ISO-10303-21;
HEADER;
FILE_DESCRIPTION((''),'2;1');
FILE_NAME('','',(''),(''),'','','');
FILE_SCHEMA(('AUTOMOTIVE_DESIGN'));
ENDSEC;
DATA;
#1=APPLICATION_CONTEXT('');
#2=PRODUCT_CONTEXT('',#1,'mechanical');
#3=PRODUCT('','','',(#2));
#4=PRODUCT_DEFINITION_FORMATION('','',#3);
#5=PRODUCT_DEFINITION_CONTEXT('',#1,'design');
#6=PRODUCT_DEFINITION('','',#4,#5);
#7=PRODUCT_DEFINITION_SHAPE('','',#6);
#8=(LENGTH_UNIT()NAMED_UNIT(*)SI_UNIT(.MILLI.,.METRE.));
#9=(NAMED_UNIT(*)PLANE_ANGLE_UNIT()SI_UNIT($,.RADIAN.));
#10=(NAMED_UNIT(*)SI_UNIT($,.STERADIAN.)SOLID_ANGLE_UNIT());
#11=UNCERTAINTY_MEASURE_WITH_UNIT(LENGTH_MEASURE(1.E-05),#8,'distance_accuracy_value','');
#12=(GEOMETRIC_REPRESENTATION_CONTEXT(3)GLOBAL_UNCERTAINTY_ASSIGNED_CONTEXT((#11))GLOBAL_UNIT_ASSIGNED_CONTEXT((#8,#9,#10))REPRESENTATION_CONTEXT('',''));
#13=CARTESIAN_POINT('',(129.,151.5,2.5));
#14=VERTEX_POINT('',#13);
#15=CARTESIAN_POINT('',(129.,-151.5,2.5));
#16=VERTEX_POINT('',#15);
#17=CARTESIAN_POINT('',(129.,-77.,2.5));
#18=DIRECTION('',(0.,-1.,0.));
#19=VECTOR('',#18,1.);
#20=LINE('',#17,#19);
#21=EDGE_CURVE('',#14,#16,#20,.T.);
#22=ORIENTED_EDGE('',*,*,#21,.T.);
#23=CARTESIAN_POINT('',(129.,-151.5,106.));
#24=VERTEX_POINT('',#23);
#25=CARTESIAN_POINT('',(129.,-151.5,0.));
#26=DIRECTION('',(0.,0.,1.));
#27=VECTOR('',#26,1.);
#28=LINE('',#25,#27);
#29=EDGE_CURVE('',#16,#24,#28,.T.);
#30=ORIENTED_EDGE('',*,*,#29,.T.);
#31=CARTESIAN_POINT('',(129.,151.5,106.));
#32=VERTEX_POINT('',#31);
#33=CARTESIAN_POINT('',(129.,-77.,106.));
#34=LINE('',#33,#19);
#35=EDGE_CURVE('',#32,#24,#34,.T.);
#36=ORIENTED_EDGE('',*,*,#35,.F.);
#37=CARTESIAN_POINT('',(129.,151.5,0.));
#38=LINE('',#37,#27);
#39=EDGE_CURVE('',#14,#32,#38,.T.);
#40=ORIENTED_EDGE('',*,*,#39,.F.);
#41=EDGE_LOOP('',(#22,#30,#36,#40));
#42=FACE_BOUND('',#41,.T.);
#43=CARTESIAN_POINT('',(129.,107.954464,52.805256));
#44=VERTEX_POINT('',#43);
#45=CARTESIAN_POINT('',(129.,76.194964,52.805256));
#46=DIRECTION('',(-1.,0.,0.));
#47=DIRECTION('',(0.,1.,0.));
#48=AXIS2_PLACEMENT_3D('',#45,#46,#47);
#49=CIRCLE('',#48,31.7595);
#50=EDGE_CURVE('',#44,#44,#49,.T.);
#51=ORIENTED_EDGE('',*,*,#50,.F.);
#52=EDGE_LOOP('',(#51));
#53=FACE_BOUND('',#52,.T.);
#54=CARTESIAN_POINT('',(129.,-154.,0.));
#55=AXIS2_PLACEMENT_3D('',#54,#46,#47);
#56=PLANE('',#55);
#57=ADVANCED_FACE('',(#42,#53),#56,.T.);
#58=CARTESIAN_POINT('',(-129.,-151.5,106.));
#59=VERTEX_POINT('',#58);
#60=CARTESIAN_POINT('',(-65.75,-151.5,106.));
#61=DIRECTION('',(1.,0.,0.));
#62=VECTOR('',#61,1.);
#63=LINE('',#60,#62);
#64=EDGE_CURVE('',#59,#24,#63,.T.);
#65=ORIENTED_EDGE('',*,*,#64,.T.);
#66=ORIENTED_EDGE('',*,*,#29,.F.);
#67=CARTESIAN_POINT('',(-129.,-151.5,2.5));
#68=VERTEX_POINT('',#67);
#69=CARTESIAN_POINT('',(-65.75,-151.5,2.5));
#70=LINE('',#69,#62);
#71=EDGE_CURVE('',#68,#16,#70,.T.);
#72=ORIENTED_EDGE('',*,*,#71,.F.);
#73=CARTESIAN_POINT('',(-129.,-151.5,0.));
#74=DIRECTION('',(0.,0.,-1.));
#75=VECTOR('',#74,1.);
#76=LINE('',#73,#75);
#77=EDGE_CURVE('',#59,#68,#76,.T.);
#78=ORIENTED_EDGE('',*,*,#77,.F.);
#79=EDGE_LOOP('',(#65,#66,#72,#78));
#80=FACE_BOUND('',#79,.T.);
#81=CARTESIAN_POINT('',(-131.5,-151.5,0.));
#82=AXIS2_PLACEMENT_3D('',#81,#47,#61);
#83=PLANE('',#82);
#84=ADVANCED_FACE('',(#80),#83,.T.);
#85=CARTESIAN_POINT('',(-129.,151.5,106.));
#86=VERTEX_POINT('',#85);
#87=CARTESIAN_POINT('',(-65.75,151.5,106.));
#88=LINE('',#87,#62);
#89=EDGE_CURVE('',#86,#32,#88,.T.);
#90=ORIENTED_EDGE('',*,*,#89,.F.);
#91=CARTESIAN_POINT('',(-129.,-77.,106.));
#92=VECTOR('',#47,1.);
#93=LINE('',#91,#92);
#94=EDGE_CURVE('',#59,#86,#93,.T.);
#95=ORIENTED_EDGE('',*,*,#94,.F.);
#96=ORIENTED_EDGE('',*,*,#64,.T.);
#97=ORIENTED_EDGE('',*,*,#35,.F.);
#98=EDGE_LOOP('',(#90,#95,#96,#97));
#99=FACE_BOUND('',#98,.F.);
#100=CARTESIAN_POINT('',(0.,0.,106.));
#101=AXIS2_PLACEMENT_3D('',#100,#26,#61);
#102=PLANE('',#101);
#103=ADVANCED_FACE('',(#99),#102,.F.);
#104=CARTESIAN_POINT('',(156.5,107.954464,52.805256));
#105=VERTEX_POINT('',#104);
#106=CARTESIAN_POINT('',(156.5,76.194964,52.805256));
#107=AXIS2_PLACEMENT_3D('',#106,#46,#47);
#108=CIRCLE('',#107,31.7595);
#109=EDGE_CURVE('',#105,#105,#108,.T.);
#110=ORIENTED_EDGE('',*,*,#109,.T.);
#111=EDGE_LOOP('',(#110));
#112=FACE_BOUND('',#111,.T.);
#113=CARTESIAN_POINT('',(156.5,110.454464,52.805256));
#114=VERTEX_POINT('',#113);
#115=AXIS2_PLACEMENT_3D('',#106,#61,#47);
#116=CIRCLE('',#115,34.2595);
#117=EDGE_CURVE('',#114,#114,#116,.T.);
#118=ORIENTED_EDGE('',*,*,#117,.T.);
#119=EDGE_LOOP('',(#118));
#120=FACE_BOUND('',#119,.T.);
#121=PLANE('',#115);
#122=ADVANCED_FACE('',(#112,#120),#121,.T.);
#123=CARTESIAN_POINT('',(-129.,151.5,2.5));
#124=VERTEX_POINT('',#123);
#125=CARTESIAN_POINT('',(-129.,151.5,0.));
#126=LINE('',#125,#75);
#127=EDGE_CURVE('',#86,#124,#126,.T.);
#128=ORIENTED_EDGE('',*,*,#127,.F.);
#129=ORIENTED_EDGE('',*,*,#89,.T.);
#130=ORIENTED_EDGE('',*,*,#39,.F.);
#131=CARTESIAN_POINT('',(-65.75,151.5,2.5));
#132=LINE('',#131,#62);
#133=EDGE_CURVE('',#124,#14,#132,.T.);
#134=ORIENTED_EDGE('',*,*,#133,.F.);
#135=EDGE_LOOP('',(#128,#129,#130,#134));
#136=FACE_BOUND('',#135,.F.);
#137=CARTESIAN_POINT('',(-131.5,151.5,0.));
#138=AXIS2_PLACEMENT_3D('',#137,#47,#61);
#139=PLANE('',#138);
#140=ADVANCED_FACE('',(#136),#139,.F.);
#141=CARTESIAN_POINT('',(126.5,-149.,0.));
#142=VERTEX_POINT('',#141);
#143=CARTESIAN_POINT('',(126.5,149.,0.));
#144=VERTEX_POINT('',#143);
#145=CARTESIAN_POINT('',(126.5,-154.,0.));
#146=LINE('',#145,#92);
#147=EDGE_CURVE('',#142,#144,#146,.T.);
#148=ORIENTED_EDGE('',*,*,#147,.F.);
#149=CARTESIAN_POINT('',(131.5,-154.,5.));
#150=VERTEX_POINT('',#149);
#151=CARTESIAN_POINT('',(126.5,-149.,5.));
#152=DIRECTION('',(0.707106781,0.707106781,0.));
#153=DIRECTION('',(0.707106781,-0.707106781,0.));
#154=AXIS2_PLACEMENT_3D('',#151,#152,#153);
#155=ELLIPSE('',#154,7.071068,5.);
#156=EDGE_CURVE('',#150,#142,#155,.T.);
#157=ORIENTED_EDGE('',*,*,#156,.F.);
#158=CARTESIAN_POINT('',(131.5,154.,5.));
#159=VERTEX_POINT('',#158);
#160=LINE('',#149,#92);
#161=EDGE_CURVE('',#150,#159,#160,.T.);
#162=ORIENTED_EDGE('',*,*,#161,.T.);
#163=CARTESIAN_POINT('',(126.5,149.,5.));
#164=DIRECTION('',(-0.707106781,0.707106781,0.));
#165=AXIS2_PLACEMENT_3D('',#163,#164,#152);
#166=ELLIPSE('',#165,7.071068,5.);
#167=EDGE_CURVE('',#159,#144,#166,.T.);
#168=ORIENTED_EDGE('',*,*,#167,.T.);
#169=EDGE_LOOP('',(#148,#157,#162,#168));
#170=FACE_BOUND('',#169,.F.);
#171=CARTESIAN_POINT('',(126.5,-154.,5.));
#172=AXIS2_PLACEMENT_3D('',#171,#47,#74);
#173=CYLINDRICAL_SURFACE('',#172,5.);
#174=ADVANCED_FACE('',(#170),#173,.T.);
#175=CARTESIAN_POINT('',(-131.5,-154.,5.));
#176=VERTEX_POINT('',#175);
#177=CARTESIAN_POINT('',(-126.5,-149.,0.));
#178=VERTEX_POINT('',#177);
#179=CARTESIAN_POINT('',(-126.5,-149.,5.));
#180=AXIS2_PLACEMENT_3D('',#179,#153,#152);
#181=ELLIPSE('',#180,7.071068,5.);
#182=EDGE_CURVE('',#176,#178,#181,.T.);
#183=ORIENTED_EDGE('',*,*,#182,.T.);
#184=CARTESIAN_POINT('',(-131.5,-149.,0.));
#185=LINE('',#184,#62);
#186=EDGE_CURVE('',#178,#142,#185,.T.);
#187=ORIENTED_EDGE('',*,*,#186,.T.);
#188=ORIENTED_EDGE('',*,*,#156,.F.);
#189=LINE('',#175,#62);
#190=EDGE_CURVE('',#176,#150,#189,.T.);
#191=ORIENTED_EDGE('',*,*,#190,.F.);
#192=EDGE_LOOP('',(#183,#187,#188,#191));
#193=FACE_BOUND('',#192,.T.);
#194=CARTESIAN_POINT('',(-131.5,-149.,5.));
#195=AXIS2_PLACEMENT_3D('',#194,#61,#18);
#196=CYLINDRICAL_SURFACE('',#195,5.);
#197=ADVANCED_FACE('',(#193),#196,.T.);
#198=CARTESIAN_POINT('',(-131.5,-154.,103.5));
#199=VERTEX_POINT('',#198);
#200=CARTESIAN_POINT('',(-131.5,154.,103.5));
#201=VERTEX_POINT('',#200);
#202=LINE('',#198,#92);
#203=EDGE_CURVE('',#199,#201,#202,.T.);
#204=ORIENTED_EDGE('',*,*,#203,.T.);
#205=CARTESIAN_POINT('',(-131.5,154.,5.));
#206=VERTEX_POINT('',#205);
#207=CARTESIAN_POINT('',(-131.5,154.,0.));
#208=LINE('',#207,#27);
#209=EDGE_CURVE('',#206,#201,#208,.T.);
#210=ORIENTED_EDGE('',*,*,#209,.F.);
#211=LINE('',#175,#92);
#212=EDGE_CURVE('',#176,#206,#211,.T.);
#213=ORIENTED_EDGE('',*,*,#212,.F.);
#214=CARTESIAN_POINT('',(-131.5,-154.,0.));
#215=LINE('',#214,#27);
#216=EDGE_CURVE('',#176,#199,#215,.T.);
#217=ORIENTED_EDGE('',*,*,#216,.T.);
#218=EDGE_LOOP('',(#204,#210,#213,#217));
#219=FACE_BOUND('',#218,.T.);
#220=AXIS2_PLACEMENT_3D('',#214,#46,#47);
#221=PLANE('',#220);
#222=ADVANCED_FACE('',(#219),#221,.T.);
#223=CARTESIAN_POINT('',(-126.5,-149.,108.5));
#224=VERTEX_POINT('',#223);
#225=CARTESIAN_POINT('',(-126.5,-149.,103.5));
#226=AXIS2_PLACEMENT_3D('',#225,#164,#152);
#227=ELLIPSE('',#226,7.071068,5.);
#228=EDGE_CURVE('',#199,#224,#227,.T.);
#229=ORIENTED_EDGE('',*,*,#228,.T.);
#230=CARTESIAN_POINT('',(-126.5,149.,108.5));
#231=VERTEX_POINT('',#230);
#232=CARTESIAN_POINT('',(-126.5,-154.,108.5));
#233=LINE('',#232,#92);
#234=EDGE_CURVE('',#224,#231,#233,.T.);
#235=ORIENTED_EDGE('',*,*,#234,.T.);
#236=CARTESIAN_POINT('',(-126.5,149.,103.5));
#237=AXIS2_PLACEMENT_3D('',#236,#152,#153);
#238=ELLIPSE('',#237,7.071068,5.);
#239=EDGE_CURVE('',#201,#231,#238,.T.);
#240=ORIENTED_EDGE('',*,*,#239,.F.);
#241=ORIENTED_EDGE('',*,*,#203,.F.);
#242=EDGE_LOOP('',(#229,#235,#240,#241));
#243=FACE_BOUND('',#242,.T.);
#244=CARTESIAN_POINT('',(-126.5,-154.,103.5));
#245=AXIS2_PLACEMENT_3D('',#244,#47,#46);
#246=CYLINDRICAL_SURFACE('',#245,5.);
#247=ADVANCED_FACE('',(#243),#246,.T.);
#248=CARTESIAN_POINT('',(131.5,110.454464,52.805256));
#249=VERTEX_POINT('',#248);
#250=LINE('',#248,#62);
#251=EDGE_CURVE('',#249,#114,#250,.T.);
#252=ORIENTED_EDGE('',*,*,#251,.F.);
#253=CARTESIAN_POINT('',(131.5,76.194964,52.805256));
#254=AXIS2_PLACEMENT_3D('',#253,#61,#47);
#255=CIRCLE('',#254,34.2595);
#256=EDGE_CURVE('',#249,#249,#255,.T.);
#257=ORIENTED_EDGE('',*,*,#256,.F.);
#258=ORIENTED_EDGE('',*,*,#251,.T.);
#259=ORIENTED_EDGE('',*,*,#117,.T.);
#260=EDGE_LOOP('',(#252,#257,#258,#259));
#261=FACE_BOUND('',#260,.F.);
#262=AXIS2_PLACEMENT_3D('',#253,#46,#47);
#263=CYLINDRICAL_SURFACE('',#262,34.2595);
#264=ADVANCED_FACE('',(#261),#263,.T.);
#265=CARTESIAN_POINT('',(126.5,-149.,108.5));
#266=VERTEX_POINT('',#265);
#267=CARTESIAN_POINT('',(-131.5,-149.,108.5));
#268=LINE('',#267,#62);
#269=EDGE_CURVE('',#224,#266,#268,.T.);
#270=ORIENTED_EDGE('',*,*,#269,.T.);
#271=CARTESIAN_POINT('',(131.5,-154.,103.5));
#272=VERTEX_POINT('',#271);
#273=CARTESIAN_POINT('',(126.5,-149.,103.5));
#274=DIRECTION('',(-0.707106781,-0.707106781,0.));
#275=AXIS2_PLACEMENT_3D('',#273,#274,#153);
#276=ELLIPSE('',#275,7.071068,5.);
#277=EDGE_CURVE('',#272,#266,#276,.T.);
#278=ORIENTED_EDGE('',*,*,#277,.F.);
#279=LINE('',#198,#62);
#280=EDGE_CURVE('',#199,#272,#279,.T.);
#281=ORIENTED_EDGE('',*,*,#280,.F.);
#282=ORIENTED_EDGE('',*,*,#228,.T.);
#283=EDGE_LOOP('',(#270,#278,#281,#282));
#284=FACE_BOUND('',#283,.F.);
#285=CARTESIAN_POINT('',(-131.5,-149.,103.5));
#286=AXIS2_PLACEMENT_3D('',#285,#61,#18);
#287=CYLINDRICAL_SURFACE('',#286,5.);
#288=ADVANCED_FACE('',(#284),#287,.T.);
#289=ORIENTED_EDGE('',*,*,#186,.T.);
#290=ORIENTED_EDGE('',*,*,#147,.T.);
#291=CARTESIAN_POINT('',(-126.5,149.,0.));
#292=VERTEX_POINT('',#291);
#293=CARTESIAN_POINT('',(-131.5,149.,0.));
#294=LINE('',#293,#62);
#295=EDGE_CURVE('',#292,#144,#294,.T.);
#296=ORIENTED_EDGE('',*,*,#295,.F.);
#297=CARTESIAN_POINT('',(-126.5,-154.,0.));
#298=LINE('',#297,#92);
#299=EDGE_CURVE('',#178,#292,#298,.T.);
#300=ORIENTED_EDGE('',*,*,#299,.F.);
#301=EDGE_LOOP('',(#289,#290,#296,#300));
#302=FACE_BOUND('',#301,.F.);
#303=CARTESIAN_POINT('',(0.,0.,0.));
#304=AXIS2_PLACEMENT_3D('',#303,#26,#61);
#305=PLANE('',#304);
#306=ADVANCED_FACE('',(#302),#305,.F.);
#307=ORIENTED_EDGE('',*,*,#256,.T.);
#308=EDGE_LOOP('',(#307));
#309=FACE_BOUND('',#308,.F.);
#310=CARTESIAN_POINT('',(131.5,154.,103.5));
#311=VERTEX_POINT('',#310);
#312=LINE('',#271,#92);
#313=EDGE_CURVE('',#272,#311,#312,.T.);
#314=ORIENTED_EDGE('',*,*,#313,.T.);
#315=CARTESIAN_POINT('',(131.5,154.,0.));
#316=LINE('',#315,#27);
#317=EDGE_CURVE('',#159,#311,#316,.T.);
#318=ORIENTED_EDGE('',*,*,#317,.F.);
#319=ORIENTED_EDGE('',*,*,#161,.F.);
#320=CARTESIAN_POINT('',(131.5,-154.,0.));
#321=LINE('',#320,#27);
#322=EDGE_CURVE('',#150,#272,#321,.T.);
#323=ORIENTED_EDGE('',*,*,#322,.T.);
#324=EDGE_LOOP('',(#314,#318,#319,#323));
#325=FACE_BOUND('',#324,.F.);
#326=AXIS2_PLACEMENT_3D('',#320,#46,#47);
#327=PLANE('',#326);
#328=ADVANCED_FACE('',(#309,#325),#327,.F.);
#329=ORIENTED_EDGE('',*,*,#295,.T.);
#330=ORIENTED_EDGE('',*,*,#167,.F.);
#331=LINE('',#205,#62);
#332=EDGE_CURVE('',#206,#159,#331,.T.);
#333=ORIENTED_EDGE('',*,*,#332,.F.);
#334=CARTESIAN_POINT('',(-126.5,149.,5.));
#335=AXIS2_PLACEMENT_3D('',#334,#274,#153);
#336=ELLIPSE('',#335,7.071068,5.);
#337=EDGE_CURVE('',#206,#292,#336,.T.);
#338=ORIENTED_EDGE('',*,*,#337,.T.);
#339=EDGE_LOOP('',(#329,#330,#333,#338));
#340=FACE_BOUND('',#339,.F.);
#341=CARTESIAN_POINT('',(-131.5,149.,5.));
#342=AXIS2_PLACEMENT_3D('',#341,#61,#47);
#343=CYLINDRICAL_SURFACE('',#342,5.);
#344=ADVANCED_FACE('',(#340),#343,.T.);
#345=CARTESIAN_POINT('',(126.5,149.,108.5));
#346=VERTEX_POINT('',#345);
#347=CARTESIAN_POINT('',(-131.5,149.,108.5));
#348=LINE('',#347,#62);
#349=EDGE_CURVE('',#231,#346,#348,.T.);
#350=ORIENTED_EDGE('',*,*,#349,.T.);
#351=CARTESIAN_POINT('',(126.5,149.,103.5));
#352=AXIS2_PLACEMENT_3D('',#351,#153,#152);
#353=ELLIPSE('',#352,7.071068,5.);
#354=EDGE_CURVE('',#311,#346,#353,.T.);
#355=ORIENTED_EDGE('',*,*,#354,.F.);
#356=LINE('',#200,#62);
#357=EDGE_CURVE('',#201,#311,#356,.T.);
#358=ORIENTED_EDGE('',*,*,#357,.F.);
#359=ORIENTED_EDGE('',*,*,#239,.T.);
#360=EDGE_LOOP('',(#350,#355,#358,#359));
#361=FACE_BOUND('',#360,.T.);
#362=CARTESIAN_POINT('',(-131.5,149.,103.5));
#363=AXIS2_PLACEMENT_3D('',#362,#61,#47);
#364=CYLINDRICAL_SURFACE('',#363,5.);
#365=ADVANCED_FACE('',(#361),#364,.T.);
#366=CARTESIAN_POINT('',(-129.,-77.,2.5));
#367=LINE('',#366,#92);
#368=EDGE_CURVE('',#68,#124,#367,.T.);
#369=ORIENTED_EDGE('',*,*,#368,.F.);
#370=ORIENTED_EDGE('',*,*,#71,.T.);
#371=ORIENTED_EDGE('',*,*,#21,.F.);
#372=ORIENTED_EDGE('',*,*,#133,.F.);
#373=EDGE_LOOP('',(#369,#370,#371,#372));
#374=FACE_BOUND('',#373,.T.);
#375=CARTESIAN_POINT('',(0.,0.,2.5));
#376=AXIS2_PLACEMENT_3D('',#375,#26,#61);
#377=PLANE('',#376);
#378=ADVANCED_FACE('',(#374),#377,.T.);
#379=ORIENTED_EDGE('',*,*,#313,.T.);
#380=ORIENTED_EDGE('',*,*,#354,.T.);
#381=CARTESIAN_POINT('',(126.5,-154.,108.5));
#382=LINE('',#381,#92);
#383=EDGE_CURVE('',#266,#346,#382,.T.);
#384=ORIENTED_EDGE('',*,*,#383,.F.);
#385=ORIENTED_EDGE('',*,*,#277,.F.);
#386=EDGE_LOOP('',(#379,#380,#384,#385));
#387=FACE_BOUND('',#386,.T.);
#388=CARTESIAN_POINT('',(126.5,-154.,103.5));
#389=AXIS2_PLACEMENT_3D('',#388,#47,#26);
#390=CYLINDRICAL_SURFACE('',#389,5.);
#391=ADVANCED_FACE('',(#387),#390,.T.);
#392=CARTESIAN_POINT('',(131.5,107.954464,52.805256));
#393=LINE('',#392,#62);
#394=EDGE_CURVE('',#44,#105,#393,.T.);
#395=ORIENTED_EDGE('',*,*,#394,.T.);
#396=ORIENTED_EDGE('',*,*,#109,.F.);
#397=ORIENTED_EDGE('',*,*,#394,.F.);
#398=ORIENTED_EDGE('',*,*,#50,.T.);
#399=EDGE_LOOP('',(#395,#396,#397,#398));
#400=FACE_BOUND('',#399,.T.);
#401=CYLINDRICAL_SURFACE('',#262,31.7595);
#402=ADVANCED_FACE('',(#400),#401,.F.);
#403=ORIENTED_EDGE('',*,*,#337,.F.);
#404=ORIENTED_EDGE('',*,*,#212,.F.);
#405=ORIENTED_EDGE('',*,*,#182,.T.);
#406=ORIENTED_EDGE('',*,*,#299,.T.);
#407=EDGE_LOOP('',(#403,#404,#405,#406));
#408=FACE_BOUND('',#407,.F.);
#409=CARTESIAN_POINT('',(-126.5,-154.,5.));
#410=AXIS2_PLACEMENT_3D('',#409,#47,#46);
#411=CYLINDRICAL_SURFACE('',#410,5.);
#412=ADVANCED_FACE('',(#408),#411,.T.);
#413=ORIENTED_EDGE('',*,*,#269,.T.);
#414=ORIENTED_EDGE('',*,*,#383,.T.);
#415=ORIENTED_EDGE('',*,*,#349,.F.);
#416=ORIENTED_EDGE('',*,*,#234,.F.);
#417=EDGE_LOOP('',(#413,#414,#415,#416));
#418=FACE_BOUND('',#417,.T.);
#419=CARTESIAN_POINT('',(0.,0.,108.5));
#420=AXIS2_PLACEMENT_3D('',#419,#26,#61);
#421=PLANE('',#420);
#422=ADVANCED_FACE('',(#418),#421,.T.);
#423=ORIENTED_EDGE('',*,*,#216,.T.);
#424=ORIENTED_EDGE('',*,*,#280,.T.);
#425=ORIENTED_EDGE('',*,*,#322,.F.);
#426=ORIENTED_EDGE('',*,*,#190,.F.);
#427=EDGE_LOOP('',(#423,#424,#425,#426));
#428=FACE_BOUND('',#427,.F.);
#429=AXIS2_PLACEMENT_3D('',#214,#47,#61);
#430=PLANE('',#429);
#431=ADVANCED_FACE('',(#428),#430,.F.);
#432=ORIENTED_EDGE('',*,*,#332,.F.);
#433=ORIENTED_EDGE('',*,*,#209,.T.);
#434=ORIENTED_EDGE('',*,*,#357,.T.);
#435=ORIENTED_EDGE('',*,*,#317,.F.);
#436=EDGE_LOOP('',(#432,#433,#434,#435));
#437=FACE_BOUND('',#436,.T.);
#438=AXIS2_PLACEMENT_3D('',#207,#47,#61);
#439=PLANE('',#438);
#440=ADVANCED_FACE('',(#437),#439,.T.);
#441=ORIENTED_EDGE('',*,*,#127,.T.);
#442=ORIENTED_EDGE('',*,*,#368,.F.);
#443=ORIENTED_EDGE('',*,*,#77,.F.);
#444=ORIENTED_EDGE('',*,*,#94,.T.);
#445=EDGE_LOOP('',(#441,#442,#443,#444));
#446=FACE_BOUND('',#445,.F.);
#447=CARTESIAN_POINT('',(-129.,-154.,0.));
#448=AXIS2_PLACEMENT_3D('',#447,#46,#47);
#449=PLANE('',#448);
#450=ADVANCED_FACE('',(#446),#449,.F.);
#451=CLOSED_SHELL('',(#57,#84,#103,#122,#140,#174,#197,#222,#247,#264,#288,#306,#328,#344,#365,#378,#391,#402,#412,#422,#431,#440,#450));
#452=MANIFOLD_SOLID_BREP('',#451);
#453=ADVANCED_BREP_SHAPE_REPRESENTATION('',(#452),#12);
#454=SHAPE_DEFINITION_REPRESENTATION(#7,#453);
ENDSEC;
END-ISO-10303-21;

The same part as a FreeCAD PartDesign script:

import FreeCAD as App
import Part
import Sketcher


def edges_at(feature, points):
    """Names of the edges that pass closest to the given points."""
    edges = feature.Shape.Edges
    near = lambda p: min(range(len(edges)), key=lambda i: edges[i].distToShape(Part.Vertex(*p))[0])
    return sorted({f"Edge{near(p) + 1}" for p in points})


def faces_at(feature, points):
    """Names of the faces that lie closest to the given points."""
    faces = feature.Shape.Faces
    near = lambda p: min(range(len(faces)), key=lambda i: faces[i].distToShape(Part.Vertex(*p))[0])
    return sorted({f"Face{near(p) + 1}" for p in points})

doc = App.newDocument("Part")
body = doc.addObject("PartDesign::Body", "Body")

# Sketch on XY plane
sketch1 = body.newObject("Sketcher::SketchObject", "Sketch")
sketch1.AttachmentSupport = (doc.getObject("XY_Plane"), [""])
sketch1.MapMode = "FlatFace"
sketch1.addGeometry([
    Part.LineSegment(App.Vector(-132, 154, 0), App.Vector(-132, -154, 0)),
    Part.LineSegment(App.Vector(-132, -154, 0), App.Vector(132, -154, 0)),
    Part.LineSegment(App.Vector(132, -154, 0), App.Vector(132, 154, 0)),
    Part.LineSegment(App.Vector(132, 154, 0), App.Vector(-132, 154, 0)),
], False)
sketch1.addConstraint([
    Sketcher.Constraint("Coincident", 0, 2, 1, 1),
    Sketcher.Constraint("Coincident", 1, 2, 2, 1),
    Sketcher.Constraint("Coincident", 2, 2, 3, 1),
    Sketcher.Constraint("Coincident", 3, 2, 0, 1),
    Sketcher.Constraint("Vertical", 0),
    Sketcher.Constraint("Horizontal", 1),
    Sketcher.Constraint("Vertical", 2),
    Sketcher.Constraint("Horizontal", 3),
    Sketcher.Constraint("Symmetric", 0, 2, 2, 2, -1, 1),
    Sketcher.Constraint("DistanceX", 1, 1, 1, 2, 263.0),
    Sketcher.Constraint("DistanceY", 0, 2, 0, 1, 308.0),
])
pad1 = body.newObject("PartDesign::Pad", "Pad")
pad1.Profile = sketch1
pad1.Length = 108.5

# Sketch on YZ plane
sketch2 = body.newObject("Sketcher::SketchObject", "Sketch001")
sketch2.AttachmentSupport = (doc.getObject("YZ_Plane"), [""])
sketch2.MapMode = "FlatFace"
sketch2.AttachmentOffset = App.Placement(App.Vector(0, 0, 131.5), App.Rotation())
sketch2.addGeometry(Part.Circle(App.Vector(76, 53, 0), App.Vector(0, 0, 1), 34), False)
sketch2.addConstraint([
    Sketcher.Constraint("Diameter", 0, 68.519),
    Sketcher.Constraint("DistanceX", -1, 1, 0, 3, 76.194964),
    Sketcher.Constraint("DistanceY", -1, 1, 0, 3, 52.805256),
])
pad2 = body.newObject("PartDesign::Pad", "Pad001")
pad2.Profile = sketch2
pad2.Length = 25
doc.recompute()

thickness = body.newObject("PartDesign::Thickness", "Thickness")
thickness.Base = (pad2, faces_at(pad2, [(156.5, 76.195, 52.805)]))
thickness.Value = 2.5
thickness.Reversed = True
thickness.Join = "Intersection"
doc.recompute()

fillet = body.newObject("PartDesign::Fillet", "Fillet")
fillet.Base = (thickness, edges_at(thickness, [
    (0, 154, 108.5),
    (0, -154, 108.5),
    (0, 154, 0),
    (0, -154, 0),
    (131.5, 0, 108.5),
    (131.5, 0, 0),
    (-131.5, 0, 108.5),
    (-131.5, 0, 0),
]))
fillet.Radius = 5

doc.recompute()
